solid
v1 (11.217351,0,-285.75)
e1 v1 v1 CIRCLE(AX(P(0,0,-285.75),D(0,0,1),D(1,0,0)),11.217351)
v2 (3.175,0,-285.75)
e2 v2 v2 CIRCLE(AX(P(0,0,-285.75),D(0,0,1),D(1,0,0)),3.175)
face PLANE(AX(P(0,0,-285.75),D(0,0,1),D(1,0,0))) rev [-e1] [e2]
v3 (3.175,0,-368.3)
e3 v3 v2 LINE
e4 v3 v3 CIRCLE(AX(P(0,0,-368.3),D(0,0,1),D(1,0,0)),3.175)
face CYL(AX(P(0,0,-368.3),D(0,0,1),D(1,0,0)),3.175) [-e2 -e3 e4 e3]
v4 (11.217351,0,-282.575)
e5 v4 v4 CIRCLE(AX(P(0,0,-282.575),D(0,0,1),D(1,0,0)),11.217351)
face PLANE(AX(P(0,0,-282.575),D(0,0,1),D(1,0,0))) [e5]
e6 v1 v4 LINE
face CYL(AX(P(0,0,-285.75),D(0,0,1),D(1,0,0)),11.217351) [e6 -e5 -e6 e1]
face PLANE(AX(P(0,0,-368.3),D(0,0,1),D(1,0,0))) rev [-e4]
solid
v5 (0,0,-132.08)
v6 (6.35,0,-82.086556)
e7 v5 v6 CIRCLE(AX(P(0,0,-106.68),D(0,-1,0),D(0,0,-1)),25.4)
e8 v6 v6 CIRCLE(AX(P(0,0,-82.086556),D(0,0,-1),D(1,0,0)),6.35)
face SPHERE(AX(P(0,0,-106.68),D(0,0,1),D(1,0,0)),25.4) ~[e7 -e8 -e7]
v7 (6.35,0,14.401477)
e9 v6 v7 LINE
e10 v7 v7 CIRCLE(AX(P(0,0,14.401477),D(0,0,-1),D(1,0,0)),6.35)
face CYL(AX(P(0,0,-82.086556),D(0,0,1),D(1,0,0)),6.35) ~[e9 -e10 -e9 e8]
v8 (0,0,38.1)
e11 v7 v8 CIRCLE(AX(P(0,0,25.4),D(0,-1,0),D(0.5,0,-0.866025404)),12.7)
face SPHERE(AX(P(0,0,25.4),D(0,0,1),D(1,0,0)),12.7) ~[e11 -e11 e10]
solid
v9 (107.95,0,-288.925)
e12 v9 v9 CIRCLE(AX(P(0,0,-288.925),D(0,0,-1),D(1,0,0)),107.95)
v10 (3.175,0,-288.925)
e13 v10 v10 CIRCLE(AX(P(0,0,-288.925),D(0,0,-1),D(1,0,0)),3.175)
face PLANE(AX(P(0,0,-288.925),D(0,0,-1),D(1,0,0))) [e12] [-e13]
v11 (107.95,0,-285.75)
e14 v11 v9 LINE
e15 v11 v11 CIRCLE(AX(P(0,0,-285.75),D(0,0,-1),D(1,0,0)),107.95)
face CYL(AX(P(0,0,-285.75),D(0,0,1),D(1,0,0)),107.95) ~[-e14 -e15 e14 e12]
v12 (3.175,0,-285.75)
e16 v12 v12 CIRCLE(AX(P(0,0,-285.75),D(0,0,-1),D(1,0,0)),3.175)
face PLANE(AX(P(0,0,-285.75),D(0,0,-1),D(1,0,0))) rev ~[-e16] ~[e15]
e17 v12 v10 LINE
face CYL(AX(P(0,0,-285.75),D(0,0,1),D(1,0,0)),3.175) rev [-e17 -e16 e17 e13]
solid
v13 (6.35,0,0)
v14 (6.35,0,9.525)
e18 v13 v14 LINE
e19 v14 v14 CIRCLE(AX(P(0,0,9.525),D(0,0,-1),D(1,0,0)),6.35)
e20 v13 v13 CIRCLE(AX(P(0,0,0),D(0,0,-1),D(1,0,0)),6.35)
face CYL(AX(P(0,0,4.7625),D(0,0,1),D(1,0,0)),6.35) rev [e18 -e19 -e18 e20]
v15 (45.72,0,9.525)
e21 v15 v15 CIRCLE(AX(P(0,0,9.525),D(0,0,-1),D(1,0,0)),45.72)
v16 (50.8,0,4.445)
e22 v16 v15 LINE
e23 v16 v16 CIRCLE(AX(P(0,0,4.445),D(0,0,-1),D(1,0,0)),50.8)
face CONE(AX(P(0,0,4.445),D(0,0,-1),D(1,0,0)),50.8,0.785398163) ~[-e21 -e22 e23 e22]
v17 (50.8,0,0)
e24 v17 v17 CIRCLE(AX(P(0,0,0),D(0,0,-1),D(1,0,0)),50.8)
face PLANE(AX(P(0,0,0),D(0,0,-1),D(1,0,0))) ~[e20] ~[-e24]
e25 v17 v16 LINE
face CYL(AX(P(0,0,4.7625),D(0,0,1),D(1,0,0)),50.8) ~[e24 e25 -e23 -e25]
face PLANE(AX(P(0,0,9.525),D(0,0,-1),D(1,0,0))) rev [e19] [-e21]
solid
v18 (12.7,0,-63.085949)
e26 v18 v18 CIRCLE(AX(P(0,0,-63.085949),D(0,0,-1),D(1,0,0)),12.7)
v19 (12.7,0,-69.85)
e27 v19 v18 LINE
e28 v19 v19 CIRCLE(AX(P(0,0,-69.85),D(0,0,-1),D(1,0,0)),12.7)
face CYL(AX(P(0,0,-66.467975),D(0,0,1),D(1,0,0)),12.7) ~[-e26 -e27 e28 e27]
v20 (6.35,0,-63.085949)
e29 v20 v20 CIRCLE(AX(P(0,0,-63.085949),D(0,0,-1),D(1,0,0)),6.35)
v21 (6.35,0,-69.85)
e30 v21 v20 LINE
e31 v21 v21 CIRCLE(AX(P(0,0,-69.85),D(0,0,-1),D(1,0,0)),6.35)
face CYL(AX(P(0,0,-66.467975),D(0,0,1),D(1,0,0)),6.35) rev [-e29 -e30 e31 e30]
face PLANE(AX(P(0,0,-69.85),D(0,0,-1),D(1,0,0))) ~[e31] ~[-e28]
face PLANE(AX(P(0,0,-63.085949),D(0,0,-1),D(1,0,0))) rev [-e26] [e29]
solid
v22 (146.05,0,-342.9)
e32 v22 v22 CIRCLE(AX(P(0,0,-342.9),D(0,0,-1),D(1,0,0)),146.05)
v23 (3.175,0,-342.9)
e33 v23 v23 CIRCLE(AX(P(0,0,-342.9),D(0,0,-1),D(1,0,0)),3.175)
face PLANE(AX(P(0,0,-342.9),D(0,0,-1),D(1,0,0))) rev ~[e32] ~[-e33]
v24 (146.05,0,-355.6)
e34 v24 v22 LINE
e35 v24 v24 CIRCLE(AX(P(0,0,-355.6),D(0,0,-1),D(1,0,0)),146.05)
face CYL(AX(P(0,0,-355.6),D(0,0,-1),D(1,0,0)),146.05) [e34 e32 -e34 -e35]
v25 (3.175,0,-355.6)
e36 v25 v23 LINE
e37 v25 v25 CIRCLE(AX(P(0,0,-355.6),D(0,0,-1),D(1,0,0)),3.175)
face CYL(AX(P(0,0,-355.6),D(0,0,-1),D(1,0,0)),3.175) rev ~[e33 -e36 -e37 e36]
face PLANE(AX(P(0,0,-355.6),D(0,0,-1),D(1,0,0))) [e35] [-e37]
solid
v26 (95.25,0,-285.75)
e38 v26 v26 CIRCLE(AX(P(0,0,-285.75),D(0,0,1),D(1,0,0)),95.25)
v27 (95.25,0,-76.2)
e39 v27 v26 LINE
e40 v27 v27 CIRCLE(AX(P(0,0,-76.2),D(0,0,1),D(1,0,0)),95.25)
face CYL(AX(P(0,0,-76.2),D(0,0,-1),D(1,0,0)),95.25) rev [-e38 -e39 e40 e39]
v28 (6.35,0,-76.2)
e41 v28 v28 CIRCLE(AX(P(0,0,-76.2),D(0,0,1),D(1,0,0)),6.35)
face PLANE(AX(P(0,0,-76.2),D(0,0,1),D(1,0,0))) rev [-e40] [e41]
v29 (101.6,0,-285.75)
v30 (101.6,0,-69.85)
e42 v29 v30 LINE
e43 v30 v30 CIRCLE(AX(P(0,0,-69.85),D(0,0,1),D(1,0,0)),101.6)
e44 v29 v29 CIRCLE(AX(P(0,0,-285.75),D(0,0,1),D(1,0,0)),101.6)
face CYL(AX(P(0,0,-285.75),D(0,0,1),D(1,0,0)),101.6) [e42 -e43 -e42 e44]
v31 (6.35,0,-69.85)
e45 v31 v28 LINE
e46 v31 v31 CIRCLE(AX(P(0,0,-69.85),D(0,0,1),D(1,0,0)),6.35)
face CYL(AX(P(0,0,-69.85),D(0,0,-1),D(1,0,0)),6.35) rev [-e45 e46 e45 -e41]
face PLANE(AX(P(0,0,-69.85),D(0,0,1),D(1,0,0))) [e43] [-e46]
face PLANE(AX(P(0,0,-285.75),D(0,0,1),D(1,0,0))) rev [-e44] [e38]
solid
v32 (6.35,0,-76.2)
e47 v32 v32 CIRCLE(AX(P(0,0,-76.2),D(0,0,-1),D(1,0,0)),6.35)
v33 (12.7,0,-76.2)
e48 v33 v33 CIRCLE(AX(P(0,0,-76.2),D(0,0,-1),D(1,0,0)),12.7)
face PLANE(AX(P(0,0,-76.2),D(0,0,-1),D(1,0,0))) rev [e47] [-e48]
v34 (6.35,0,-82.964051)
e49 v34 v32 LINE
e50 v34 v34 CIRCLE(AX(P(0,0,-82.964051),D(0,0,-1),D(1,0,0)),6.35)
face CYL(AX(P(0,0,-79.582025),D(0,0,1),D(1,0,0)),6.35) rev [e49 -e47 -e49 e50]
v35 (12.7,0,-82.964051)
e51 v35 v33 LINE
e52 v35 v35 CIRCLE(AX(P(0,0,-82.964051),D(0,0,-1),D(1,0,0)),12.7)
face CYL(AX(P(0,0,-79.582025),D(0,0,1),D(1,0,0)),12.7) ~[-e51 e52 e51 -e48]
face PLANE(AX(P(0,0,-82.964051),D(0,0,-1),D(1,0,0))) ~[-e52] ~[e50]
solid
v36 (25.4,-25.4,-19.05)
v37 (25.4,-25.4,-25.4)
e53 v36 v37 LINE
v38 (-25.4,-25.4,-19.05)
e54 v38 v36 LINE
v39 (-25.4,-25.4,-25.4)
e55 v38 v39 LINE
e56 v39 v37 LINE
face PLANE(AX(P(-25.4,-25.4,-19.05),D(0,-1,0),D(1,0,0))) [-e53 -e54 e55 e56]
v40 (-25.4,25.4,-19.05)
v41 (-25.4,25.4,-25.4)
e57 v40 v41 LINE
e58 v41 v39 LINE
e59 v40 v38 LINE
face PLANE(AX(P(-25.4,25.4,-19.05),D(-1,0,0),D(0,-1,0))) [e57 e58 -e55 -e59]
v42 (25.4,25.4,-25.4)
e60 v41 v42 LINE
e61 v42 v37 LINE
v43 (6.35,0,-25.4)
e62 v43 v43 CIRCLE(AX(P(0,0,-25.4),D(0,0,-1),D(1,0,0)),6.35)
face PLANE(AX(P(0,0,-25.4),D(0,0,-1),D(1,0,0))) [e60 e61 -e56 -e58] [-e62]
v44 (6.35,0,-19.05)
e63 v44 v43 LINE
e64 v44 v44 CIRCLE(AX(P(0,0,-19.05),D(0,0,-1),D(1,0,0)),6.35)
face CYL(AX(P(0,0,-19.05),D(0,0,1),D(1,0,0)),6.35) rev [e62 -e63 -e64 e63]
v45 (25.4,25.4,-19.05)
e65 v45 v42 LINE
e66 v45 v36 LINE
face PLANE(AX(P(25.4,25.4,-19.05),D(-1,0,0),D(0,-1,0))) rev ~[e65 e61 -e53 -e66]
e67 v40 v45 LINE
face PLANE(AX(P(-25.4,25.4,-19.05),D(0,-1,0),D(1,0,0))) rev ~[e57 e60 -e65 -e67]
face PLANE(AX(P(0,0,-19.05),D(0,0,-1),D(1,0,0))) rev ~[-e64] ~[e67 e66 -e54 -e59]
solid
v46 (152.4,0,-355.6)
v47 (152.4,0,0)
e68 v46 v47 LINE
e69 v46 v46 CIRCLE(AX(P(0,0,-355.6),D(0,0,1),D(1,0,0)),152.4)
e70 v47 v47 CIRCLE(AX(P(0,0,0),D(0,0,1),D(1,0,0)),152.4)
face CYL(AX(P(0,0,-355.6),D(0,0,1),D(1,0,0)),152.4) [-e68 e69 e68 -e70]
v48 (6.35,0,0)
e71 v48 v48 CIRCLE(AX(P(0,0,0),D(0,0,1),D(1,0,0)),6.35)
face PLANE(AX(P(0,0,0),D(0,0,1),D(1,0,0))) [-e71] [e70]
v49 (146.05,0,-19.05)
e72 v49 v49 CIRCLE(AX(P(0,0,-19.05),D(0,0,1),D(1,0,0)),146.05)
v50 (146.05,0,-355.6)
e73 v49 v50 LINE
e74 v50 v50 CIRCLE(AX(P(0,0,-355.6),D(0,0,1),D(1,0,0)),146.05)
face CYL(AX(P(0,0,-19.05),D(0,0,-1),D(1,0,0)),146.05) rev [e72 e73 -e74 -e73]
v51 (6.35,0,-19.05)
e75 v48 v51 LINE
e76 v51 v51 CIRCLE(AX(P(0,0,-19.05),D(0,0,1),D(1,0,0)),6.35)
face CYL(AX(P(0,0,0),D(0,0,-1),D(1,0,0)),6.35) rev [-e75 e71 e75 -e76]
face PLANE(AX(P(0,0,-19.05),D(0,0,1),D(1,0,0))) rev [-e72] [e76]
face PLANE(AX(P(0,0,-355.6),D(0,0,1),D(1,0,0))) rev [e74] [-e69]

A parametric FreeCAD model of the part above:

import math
import FreeCAD as App
import Part
import Sketcher

V = App.Vector
Q = App.Units.Quantity


def edges_at(feature, points):
    """Names of the edges that pass closest to the given points."""
    edges = feature.Shape.Edges
    near = lambda p: min(range(len(edges)), key=lambda i: edges[i].distToShape(Part.Vertex(*p))[0])
    return sorted({f"Edge{near(p) + 1}" for p in points})

doc = App.newDocument("Part")
body = doc.addObject("PartDesign::Body", "Body")

sketch1 = doc.addObject("Sketcher::SketchObject", "Sketch")
body.addObject(sketch1)
sketch1.AttachmentSupport = (doc.XZ_Plane, [""])
sketch1.MapMode = "FlatFace"
sketch1.addGeometry([
    Part.LineSegment(V(152, 0, 0), V(6, 0, 0)),
    Part.LineSegment(V(6, 0, 0), V(6, -19, 0)),
    Part.LineSegment(V(6, -19, 0), V(146, -19, 0)),
    Part.LineSegment(V(146, -19, 0), V(146, -356, 0)),
    Part.LineSegment(V(146, -356, 0), V(152, -356, 0)),
    Part.LineSegment(V(152, -356, 0), V(152, 0, 0)),
], False)
sketch1.addConstraint([
    Sketcher.Constraint("Coincident", 0, 2, 1, 1),
    Sketcher.Constraint("Coincident", 1, 2, 2, 1),
    Sketcher.Constraint("Coincident", 2, 2, 3, 1),
    Sketcher.Constraint("Coincident", 3, 2, 4, 1),
    Sketcher.Constraint("Coincident", 4, 2, 5, 1),
    Sketcher.Constraint("Coincident", 5, 2, 0, 1),
    Sketcher.Constraint("Horizontal", 0),
    Sketcher.Constraint("Vertical", 1),
    Sketcher.Constraint("Horizontal", 2),
    Sketcher.Constraint("Vertical", 3),
    Sketcher.Constraint("Horizontal", 4),
    Sketcher.Constraint("Vertical", 5),
    Sketcher.Constraint("PointOnObject", 0, 2, -1),
    Sketcher.Constraint("DistanceY", 5, 1, 5, 2, Q("14 in")),
    Sketcher.Constraint("DistanceX", 2, 1, 2, 2, Q("5.5 in")),
    Sketcher.Constraint("DistanceX", -1, 1, 4, 2, Q("6 in")),
    Sketcher.Constraint("DistanceX", 0, 2, 0, 1, Q("5.75 in")),
    Sketcher.Constraint("DistanceY", 1, 2, 1, 1, Q("0.75 in")),
])
revolution = doc.addObject("PartDesign::Revolution", "Revolution")
body.addObject(revolution)
revolution.Profile = sketch1
revolution.ReferenceAxis = (sketch1, ["V_Axis"])
revolution.Angle = 360
body2 = doc.addObject("PartDesign::Body", "Body001")

sketch2 = doc.addObject("Sketcher::SketchObject", "Sketch001")
body2.addObject(sketch2)
sketch2.AttachmentSupport = (doc.getObject("XZ_Plane001"), [""])
sketch2.MapMode = "FlatFace"
sketch2.addGeometry([
    Part.LineSegment(V(6, 10, 0), V(6, 0, 0)),
    Part.LineSegment(V(6, 0, 0), V(51, 0, 0)),
    Part.LineSegment(V(51, 0, 0), V(51, 10, 0)),
    Part.LineSegment(V(51, 10, 0), V(6, 10, 0)),
], False)
sketch2.addConstraint([
    Sketcher.Constraint("Coincident", 0, 2, 1, 1),
    Sketcher.Constraint("Coincident", 1, 2, 2, 1),
    Sketcher.Constraint("Coincident", 2, 2, 3, 1),
    Sketcher.Constraint("Coincident", 3, 2, 0, 1),
    Sketcher.Constraint("Vertical", 0),
    Sketcher.Constraint("Horizontal", 1),
    Sketcher.Constraint("Vertical", 2),
    Sketcher.Constraint("Horizontal", 3),
    Sketcher.Constraint("PointOnObject", 0, 2, -1),
    Sketcher.Constraint("DistanceX", -1, 1, 1, 2, Q("2 in")),
    Sketcher.Constraint("DistanceX", 1, 1, 1, 2, Q("1.75 in")),
    Sketcher.Constraint("DistanceY", 0, 2, 0, 1, Q("0.375 in")),
])
revolution2 = doc.addObject("PartDesign::Revolution", "Revolution001")
body2.addObject(revolution2)
revolution2.Profile = sketch2
revolution2.ReferenceAxis = (sketch2, ["V_Axis"])
revolution2.Angle = 360
doc.recompute()

chamfer = doc.addObject("PartDesign::Chamfer", "Chamfer")
body2.addObject(chamfer)
chamfer.Base = (revolution2, edges_at(revolution2, [(-50.8, 0, 9.525)]))
chamfer.Size = Q("0.2 in")
body3 = doc.addObject("PartDesign::Body", "Body002")

sketch3 = doc.addObject("Sketcher::SketchObject", "Sketch002")
body3.addObject(sketch3)
sketch3.AttachmentSupport = (doc.getObject("XZ_Plane002"), [""])
sketch3.MapMode = "FlatFace"
sketch3.addGeometry([
    Part.ArcOfCircle(Part.Circle(V(0, -107, 0), V(0, 0, 1), 25), math.radians(-90), math.radians(76)),
    Part.LineSegment(V(6, -82, 0), V(6, 14, 0)),
    Part.ArcOfCircle(Part.Circle(V(0, 25, 0), V(0, 0, 1), 13), math.radians(-60), math.radians(90)),
    Part.LineSegment(V(0, 38, 0), V(0, -132, 0)),
], False)
sketch3.addConstraint([
    Sketcher.Constraint("Coincident", 0, 2, 1, 1),
    Sketcher.Constraint("Coincident", 1, 2, 2, 1),
    Sketcher.Constraint("Coincident", 2, 2, 3, 1),
    Sketcher.Constraint("Coincident", 3, 2, 0, 1),
    Sketcher.Constraint("Vertical", 1),
    Sketcher.Constraint("Vertical", 3),
    Sketcher.Constraint("PointOnObject", 0, 3, -2),
    Sketcher.Constraint("PointOnObject", 2, 3, -2),
    Sketcher.Constraint("PointOnObject", 2, 2, -2),
    Sketcher.Constraint("Radius", 0, Q("1 in")),
    Sketcher.Constraint("Radius", 2, Q("0.5 in")),
    Sketcher.Constraint("DistanceY", 3, 2, 3, 1, Q("6.7 in")),
    Sketcher.Constraint("DistanceY", -1, 1, 2, 3, Q("1 in")),
    Sketcher.Constraint("DistanceX", -1, 1, 0, 2, Q("0.25 in")),
])
revolution3 = doc.addObject("PartDesign::Revolution", "Revolution002")
body3.addObject(revolution3)
revolution3.Profile = sketch3
revolution3.ReferenceAxis = (sketch3, ["V_Axis"])
revolution3.Angle = 360
body4 = doc.addObject("PartDesign::Body", "Body003")

sketch4 = doc.addObject("Sketcher::SketchObject", "Sketch003")
body4.addObject(sketch4)
sketch4.AttachmentSupport = (doc.getObject("XZ_Plane003"), [""])
sketch4.MapMode = "FlatFace"
sketch4.addGeometry([
    Part.LineSegment(V(102, -70, 0), V(6, -70, 0)),
    Part.LineSegment(V(6, -70, 0), V(6, -76, 0)),
    Part.LineSegment(V(6, -76, 0), V(95, -76, 0)),
    Part.LineSegment(V(95, -76, 0), V(95, -286, 0)),
    Part.LineSegment(V(95, -286, 0), V(102, -286, 0)),
    Part.LineSegment(V(102, -286, 0), V(102, -70, 0)),
], False)
sketch4.addConstraint([
    Sketcher.Constraint("Coincident", 0, 2, 1, 1),
    Sketcher.Constraint("Coincident", 1, 2, 2, 1),
    Sketcher.Constraint("Coincident", 2, 2, 3, 1),
    Sketcher.Constraint("Coincident", 3, 2, 4, 1),
    Sketcher.Constraint("Coincident", 4, 2, 5, 1),
    Sketcher.Constraint("Coincident", 5, 2, 0, 1),
    Sketcher.Constraint("Horizontal", 0),
    Sketcher.Constraint("Vertical", 1),
    Sketcher.Constraint("Horizontal", 2),
    Sketcher.Constraint("Vertical", 3),
    Sketcher.Constraint("Horizontal", 4),
    Sketcher.Constraint("Vertical", 5),
    Sketcher.Constraint("Equal", 4, 1),
    Sketcher.Constraint("DistanceX", 2, 1, 2, 2, Q("3.5 in")),
    Sketcher.Constraint("DistanceY", 5, 1, 5, 2, Q("8.5 in")),
    Sketcher.Constraint("DistanceY", 1, 2, -1, 1, Q("3 in")),
    Sketcher.Constraint("DistanceX", -1, 1, 4, 2, Q("4 in")),
    Sketcher.Constraint("DistanceX", 0, 2, 0, 1, Q("3.75 in")),
])
revolution4 = doc.addObject("PartDesign::Revolution", "Revolution003")
body4.addObject(revolution4)
revolution4.Profile = sketch4
revolution4.ReferenceAxis = (sketch4, ["V_Axis"])
revolution4.Angle = 360
body5 = doc.addObject("PartDesign::Body", "Body004")

sketch5 = doc.addObject("Sketcher::SketchObject", "Sketch004")
body5.addObject(sketch5)
sketch5.AttachmentSupport = (doc.getObject("XZ_Plane004"), [""])
sketch5.MapMode = "FlatFace"
sketch5.addGeometry([
    Part.LineSegment(V(6, -63, 0), V(6, -70, 0)),
    Part.LineSegment(V(6, -70, 0), V(13, -70, 0)),
    Part.LineSegment(V(13, -70, 0), V(13, -63, 0)),
    Part.LineSegment(V(13, -63, 0), V(6, -63, 0)),
], False)
sketch5.addConstraint([
    Sketcher.Constraint("Coincident", 0, 2, 1, 1),
    Sketcher.Constraint("Coincident", 1, 2, 2, 1),
    Sketcher.Constraint("Coincident", 2, 2, 3, 1),
    Sketcher.Constraint("Coincident", 3, 2, 0, 1),
    Sketcher.Constraint("Vertical", 0),
    Sketcher.Constraint("Horizontal", 1),
    Sketcher.Constraint("Vertical", 2),
    Sketcher.Constraint("Horizontal", 3),
    Sketcher.Constraint("DistanceX", 1, 1, 1, 2, Q("0.25 in")),
    Sketcher.Constraint("DistanceX", -1, 1, 1, 2, Q("0.5 in")),
    Sketcher.Constraint("DistanceY", 0, 2, -1, 1, Q("2.75 in")),
    Sketcher.Constraint("DistanceY", 0, 2, 0, 1, 6.764051),
])
revolution5 = doc.addObject("PartDesign::Revolution", "Revolution004")
body5.addObject(revolution5)
revolution5.Profile = sketch5
revolution5.ReferenceAxis = (sketch5, ["V_Axis"])
revolution5.Angle = 360
body6 = doc.addObject("PartDesign::Body", "Body005")

sketch6 = doc.addObject("Sketcher::SketchObject", "Sketch005")
body6.addObject(sketch6)
sketch6.AttachmentSupport = (doc.getObject("XZ_Plane005"), [""])
sketch6.MapMode = "FlatFace"
sketch6.addGeometry([
    Part.LineSegment(V(6, -76, 0), V(6, -83, 0)),
    Part.LineSegment(V(6, -83, 0), V(13, -83, 0)),
    Part.LineSegment(V(13, -83, 0), V(13, -76, 0)),
    Part.LineSegment(V(13, -76, 0), V(6, -76, 0)),
], False)
sketch6.addConstraint([
    Sketcher.Constraint("Coincident", 0, 2, 1, 1),
    Sketcher.Constraint("Coincident", 1, 2, 2, 1),
    Sketcher.Constraint("Coincident", 2, 2, 3, 1),
    Sketcher.Constraint("Coincident", 3, 2, 0, 1),
    Sketcher.Constraint("Vertical", 0),
    Sketcher.Constraint("Horizontal", 1),
    Sketcher.Constraint("Vertical", 2),
    Sketcher.Constraint("Horizontal", 3),
    Sketcher.Constraint("DistanceY", 2, 2, -1, 1, Q("3 in")),
    Sketcher.Constraint("DistanceX", 1, 1, 1, 2, Q("0.25 in")),
    Sketcher.Constraint("DistanceX", -1, 1, 1, 2, Q("0.5 in")),
    Sketcher.Constraint("DistanceY", 0, 2, 0, 1, 6.764051),
])
revolution6 = doc.addObject("PartDesign::Revolution", "Revolution005")
body6.addObject(revolution6)
revolution6.Profile = sketch6
revolution6.ReferenceAxis = (sketch6, ["V_Axis"])
revolution6.Angle = 360
body7 = doc.addObject("PartDesign::Body", "Body006")

sketch7 = doc.addObject("Sketcher::SketchObject", "Sketch006")
body7.addObject(sketch7)
sketch7.AttachmentSupport = (doc.getObject("XY_Plane006"), [""])
sketch7.MapMode = "FlatFace"
sketch7.AttachmentOffset = App.Placement(V(0, 0, -11.25 * 25.4), App.Rotation())
sketch7.addGeometry([
    Part.Circle(V(0, 0, 0), V(0, 0, 1), 108),
    Part.Circle(V(0, 0, 0), V(0, 0, 1), 3.2),
], False)
sketch7.addConstraint([
    Sketcher.Constraint("Coincident", 0, 3, -1, 1),
    Sketcher.Constraint("Coincident", 1, 3, -1, 1),
    Sketcher.Constraint("Diameter", 0, Q("8.5 in")),
    Sketcher.Constraint("Diameter", 1, Q("0.25 in")),
])
pad1 = doc.addObject("PartDesign::Pad", "Pad")
body7.addObject(pad1)
pad1.Profile = sketch7
pad1.Length = Q("0.125 in")
pad1.Reversed = True
body8 = doc.addObject("PartDesign::Body", "Body007")

sketch8 = doc.addObject("Sketcher::SketchObject", "Sketch007")
body8.addObject(sketch8)
sketch8.AttachmentSupport = (doc.getObject("XZ_Plane007"), [""])
sketch8.MapMode = "FlatFace"
sketch8.addGeometry([
    Part.LineSegment(V(11.2, -282.6, 0), V(0, -282.6, 0)),
    Part.LineSegment(V(0, -282.6, 0), V(0, -368.3, 0)),
    Part.LineSegment(V(0, -368.3, 0), V(3.2, -368.3, 0)),
    Part.LineSegment(V(3.2, -368.3, 0), V(3.2, -285.8, 0)),
    Part.LineSegment(V(3.2, -285.8, 0), V(11.2, -285.8, 0)),
    Part.LineSegment(V(11.2, -285.8, 0), V(11.2, -282.6, 0)),
], False)
sketch8.addConstraint([
    Sketcher.Constraint("Coincident", 0, 2, 1, 1),
    Sketcher.Constraint("Coincident", 1, 2, 2, 1),
    Sketcher.Constraint("Coincident", 2, 2, 3, 1),
    Sketcher.Constraint("Coincident", 3, 2, 4, 1),
    Sketcher.Constraint("Coincident", 4, 2, 5, 1),
    Sketcher.Constraint("Coincident", 5, 2, 0, 1),
    Sketcher.Constraint("Horizontal", 0),
    Sketcher.Constraint("Vertical", 1),
    Sketcher.Constraint("Horizontal", 2),
    Sketcher.Constraint("Vertical", 3),
    Sketcher.Constraint("Horizontal", 4),
    Sketcher.Constraint("Vertical", 5),
    Sketcher.Constraint("PointOnObject", 0, 2, -2),
    Sketcher.Constraint("Equal", 2, 5),
    Sketcher.Constraint("DistanceY", 3, 1, 3, 2, Q("3.25 in")),
    Sketcher.Constraint("DistanceY", 1, 2, -1, 1, Q("14.5 in")),
    Sketcher.Constraint("DistanceX", 2, 1, 2, 2, Q("0.125 in")),
    Sketcher.Constraint("DistanceX", 0, 2, 0, 1, 11.217351),
])
revolution7 = doc.addObject("PartDesign::Revolution", "Revolution006")
body8.addObject(revolution7)
revolution7.Profile = sketch8
revolution7.ReferenceAxis = (sketch8, ["V_Axis"])
revolution7.Angle = 360
body9 = doc.addObject("PartDesign::Body", "Body008")

sketch9 = doc.addObject("Sketcher::SketchObject", "Sketch008")
body9.addObject(sketch9)
sketch9.AttachmentSupport = (doc.getObject("XY_Plane008"), [""])
sketch9.MapMode = "FlatFace"
sketch9.AttachmentOffset = App.Placement(V(0, 0, -0.75 * 25.4), App.Rotation())
sketch9.addGeometry([
    Part.LineSegment(V(-25, -25, 0), V(-25, 25, 0)),
    Part.LineSegment(V(-25, 25, 0), V(25, 25, 0)),
    Part.LineSegment(V(25, 25, 0), V(25, -25, 0)),
    Part.LineSegment(V(25, -25, 0), V(-25, -25, 0)),
    Part.Circle(V(0, 0, 0), V(0, 0, 1), 6),
], False)
sketch9.addConstraint([
    Sketcher.Constraint("Coincident", 0, 2, 1, 1),
    Sketcher.Constraint("Coincident", 1, 2, 2, 1),
    Sketcher.Constraint("Coincident", 2, 2, 3, 1),
    Sketcher.Constraint("Coincident", 3, 2, 0, 1),
    Sketcher.Constraint("Vertical", 0),
    Sketcher.Constraint("Horizontal", 1),
    Sketcher.Constraint("Vertical", 2),
    Sketcher.Constraint("Horizontal", 3),
    Sketcher.Constraint("Coincident", 4, 3, -1, 1),
    Sketcher.Constraint("Symmetric", 0, 2, 2, 2, -1, 1),
    Sketcher.Constraint("Equal", 3, 0),
    Sketcher.Constraint("Diameter", 4, Q("0.5 in")),
    Sketcher.Constraint("DistanceX", 1, 1, 1, 2, Q("2 in")),
])
pad2 = doc.addObject("PartDesign::Pad", "Pad001")
body9.addObject(pad2)
pad2.Profile = sketch9
pad2.Length = Q("0.25 in")
pad2.Reversed = True
body10 = doc.addObject("PartDesign::Body", "Body009")

sketch10 = doc.addObject("Sketcher::SketchObject", "Sketch009")
body10.addObject(sketch10)
sketch10.AttachmentSupport = (doc.getObject("XY_Plane009"), [""])
sketch10.MapMode = "FlatFace"
sketch10.AttachmentOffset = App.Placement(V(0, 0, -14 * 25.4), App.Rotation())
sketch10.addGeometry([
    Part.Circle(V(0, 0, 0), V(0, 0, 1), 146.1),
    Part.Circle(V(0, 0, 0), V(0, 0, 1), 3.2),
], False)
sketch10.addConstraint([
    Sketcher.Constraint("Coincident", 0, 3, -1, 1),
    Sketcher.Constraint("Coincident", 1, 3, -1, 1),
    Sketcher.Constraint("Diameter", 0, Q("11.5 in")),
    Sketcher.Constraint("Diameter", 1, Q("0.25 in")),
])
pad3 = doc.addObject("PartDesign::Pad", "Pad002")
body10.addObject(pad3)
pad3.Profile = sketch10
pad3.Length = Q("0.5 in")

doc.recompute()
